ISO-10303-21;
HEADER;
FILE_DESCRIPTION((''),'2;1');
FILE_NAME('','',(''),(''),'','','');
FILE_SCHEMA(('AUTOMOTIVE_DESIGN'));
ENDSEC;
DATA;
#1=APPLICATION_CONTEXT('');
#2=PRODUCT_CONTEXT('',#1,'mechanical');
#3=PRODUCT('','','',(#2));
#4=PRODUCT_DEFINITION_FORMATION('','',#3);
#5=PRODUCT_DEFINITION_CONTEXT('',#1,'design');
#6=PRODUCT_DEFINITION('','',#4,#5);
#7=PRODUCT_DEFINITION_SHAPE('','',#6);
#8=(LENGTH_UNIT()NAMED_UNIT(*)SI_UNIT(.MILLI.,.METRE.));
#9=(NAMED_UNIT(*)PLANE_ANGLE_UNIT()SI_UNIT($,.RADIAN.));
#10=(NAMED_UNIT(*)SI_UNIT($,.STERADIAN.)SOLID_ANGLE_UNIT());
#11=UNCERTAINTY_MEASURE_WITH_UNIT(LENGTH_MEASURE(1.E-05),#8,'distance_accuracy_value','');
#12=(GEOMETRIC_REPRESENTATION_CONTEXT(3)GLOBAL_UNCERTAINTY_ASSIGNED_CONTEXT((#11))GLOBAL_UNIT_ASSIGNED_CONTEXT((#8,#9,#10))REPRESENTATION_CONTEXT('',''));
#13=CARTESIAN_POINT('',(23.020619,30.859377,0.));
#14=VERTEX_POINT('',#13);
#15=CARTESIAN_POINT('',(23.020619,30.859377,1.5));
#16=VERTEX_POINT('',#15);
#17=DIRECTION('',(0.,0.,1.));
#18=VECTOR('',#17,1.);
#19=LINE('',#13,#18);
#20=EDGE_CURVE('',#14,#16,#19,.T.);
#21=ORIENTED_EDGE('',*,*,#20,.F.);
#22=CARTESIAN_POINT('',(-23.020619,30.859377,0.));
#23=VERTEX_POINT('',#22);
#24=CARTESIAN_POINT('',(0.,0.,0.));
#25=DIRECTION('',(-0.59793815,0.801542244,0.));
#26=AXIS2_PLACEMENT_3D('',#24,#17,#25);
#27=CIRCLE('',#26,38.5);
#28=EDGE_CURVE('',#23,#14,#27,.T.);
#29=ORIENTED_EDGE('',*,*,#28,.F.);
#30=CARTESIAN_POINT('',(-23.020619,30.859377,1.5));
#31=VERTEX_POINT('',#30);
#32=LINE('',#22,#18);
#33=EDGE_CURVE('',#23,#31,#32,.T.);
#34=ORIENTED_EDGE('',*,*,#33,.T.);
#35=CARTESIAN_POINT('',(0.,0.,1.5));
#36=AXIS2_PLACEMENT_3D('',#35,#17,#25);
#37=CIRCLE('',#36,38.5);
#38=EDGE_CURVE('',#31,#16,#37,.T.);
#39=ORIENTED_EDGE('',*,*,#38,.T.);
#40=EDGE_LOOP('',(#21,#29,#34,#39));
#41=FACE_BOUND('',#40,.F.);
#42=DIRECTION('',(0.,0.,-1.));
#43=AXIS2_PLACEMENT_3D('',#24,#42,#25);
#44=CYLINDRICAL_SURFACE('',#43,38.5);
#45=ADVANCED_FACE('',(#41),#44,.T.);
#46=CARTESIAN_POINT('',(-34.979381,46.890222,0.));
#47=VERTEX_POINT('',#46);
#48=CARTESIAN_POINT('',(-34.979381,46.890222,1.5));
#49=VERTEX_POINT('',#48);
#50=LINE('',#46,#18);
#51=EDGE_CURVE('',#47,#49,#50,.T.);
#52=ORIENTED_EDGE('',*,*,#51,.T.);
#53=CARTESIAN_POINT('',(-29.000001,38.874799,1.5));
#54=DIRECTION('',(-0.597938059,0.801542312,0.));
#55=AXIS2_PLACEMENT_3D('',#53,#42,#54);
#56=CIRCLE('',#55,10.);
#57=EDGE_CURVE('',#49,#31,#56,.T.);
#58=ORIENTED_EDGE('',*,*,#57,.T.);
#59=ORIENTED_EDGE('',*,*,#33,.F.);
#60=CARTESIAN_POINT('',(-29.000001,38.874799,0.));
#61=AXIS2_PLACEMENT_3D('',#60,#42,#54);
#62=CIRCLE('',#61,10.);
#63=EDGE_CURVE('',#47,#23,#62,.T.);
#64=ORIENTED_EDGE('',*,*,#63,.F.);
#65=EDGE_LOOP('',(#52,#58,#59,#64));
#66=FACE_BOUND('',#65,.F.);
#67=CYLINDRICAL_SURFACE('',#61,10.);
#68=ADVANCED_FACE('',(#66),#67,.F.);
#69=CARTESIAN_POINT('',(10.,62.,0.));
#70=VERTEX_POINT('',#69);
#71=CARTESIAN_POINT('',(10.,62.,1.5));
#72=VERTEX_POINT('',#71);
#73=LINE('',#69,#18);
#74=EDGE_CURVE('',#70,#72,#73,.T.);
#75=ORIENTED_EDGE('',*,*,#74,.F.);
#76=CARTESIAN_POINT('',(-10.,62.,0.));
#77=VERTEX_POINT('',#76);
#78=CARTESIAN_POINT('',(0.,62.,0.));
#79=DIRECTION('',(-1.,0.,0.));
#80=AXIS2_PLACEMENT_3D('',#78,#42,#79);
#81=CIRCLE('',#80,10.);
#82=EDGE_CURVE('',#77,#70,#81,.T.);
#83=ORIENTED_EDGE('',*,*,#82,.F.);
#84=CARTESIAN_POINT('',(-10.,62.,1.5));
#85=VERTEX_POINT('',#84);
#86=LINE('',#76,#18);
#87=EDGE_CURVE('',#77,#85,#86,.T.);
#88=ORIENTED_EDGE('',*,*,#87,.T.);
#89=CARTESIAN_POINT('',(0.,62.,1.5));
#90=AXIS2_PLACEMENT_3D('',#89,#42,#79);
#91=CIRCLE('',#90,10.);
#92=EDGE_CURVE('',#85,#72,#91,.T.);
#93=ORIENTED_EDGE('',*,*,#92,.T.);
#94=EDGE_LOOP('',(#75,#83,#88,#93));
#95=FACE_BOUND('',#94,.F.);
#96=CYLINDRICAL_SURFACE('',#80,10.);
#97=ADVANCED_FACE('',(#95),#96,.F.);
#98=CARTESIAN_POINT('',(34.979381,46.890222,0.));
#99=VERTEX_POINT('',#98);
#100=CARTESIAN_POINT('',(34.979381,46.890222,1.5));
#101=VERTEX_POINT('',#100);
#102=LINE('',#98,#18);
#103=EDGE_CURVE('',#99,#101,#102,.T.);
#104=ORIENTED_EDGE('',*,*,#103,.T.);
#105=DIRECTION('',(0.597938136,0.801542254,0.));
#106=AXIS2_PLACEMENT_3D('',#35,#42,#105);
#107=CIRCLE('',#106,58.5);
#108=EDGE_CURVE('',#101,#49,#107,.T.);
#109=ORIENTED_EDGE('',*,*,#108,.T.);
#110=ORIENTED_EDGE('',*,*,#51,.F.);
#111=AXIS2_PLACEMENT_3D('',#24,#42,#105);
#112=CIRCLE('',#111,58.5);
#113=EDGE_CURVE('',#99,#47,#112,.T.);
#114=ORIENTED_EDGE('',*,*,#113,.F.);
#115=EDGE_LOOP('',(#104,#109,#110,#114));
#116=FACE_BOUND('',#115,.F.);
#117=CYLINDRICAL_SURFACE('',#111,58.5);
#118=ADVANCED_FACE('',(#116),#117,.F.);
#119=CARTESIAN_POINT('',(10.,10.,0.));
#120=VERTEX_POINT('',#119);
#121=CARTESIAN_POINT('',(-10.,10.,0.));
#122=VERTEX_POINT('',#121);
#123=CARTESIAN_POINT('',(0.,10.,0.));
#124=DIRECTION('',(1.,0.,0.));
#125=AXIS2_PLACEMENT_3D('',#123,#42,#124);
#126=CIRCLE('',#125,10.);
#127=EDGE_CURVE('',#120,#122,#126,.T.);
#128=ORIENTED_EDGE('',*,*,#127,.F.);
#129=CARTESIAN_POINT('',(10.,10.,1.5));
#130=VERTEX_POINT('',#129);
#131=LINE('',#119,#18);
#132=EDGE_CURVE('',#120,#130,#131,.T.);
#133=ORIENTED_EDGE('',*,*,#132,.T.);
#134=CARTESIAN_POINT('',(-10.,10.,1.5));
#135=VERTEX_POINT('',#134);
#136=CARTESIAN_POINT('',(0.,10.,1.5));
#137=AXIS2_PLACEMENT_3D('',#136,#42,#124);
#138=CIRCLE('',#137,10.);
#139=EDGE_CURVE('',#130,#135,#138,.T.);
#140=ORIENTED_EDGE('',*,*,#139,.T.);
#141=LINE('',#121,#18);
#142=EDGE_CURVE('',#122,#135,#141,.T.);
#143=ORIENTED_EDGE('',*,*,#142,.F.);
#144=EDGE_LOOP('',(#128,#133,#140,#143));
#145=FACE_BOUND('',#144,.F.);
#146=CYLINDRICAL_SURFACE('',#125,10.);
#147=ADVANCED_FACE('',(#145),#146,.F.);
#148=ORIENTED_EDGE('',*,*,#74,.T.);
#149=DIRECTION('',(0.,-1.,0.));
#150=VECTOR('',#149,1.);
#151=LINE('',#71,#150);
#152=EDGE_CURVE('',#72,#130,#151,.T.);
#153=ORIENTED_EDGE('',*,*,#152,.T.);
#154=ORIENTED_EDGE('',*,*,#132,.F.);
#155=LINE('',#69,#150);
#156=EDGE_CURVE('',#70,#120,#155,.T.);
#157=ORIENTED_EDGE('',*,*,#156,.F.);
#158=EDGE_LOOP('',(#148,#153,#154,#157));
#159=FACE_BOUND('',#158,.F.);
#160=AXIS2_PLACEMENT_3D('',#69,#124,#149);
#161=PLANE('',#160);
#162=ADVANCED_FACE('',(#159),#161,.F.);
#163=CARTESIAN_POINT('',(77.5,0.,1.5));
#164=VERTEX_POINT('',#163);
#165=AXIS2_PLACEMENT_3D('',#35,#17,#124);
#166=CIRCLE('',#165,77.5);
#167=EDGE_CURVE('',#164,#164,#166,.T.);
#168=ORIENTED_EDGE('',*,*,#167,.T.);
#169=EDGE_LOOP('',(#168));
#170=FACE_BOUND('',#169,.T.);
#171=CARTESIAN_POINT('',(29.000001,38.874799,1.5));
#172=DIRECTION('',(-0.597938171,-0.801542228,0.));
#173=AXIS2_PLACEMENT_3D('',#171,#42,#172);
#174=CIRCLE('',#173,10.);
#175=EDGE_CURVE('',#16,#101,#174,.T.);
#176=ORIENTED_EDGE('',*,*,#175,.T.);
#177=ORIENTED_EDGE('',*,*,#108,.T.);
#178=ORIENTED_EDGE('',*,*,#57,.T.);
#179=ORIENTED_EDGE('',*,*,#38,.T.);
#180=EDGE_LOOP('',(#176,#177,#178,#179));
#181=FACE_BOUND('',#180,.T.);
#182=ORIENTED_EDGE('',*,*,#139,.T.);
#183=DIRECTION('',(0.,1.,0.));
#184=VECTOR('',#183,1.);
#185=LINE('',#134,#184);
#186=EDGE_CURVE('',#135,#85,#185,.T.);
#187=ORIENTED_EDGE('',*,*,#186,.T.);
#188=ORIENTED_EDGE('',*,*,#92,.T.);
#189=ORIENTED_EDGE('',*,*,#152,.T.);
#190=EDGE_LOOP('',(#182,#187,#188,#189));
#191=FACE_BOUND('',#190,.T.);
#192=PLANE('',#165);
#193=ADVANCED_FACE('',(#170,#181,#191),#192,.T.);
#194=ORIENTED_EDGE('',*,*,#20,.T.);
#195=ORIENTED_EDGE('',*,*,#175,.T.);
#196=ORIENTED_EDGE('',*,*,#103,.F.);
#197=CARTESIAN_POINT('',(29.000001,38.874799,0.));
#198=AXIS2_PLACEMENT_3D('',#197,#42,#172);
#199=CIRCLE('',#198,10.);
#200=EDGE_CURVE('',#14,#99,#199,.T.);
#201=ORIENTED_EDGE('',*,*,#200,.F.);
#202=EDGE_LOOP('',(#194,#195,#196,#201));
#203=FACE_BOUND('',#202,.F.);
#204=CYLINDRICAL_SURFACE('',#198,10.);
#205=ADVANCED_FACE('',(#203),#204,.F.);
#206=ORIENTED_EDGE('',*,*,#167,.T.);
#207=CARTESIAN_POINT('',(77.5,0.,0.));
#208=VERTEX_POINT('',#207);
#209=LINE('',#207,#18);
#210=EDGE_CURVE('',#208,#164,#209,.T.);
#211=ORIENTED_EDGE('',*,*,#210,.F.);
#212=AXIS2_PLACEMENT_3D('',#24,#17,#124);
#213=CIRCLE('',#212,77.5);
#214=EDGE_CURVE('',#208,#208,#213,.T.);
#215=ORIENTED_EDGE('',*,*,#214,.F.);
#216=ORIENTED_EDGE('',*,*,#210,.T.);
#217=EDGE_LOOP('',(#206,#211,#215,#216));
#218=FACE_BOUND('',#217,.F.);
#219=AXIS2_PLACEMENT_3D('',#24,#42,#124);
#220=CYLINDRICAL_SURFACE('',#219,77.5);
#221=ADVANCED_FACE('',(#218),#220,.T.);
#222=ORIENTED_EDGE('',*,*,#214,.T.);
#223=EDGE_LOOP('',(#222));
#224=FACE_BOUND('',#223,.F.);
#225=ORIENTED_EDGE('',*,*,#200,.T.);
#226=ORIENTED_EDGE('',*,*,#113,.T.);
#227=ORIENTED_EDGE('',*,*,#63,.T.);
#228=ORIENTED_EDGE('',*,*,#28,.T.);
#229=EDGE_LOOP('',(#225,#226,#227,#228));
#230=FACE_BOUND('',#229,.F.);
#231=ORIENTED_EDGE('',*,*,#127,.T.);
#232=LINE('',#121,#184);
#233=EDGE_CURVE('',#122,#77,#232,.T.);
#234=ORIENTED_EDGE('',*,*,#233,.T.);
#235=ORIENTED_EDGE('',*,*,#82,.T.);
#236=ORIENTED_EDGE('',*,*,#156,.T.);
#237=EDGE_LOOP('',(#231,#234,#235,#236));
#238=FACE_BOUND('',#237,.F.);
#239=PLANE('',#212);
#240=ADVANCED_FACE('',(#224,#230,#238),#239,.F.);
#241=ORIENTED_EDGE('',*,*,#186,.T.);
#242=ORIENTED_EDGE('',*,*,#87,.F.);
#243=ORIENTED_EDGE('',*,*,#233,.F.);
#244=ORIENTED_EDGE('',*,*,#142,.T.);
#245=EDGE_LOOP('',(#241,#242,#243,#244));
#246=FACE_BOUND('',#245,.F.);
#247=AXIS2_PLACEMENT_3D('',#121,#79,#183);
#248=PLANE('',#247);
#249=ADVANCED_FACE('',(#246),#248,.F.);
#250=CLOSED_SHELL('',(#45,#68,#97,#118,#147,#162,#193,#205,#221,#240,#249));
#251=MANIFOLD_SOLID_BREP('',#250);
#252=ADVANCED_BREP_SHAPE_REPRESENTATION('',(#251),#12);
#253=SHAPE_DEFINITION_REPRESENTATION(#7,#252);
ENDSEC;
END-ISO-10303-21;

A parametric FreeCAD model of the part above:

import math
import FreeCAD as App
import Part
import Sketcher
from FreeCAD import Vector
Q = App.Units.Quantity

doc = App.newDocument("Part")
body = doc.addObject("PartDesign::Body", "Body")

# Sketch on XY plane
sketch1 = body.newObject("Sketcher::SketchObject", "Sketch")
sketch1.AttachmentSupport = (doc.getObject("XY_Plane"), [""])
sketch1.MapMode = "FlatFace"
sketch1.addGeometry([
    Part.Circle(Vector(0, 0, 0), Vector(0, 0, 1), 77.5),  # 0
    Part.ArcOfCircle(Part.Circle(Vector(29.000001, 38.874799, 0), Vector(0, 0, 1), 10), math.radians(53.277636), math.radians(233.277628)),  # 1
    Part.ArcOfCircle(Part.Circle(Vector(0, 0, 0), Vector(0, 0, 1), 58.5), math.radians(126.72237), math.radians(413.27763)),  # 2
    Part.ArcOfCircle(Part.Circle(Vector(-29.000001, 38.874799, 0), Vector(0, 0, 1), 10), math.radians(-53.277628), math.radians(126.722364)),  # 3
    Part.ArcOfCircle(Part.Circle(Vector(0, 0, 0), Vector(0, 0, 1), 38.5), math.radians(126.722371), math.radians(413.277629)),  # 4
    Part.ArcOfCircle(Part.Circle(Vector(0, 62, 0), Vector(0, 0, 1), 10), math.radians(0), math.radians(180)),  # 5
    Part.LineSegment(Vector(10, 62, 0), Vector(10, 10, 0)),  # 6
    Part.ArcOfCircle(Part.Circle(Vector(0, 10, 0), Vector(0, 0, 1), 10), math.radians(180), math.radians(360)),  # 7
    Part.LineSegment(Vector(-10, 10, 0), Vector(-10, 62, 0)),  # 8
], False)
sketch1.addConstraint([
    Sketcher.Constraint("Tangent", 1, 1, 2, 2),
    Sketcher.Constraint("Tangent", 2, 1, 3, 2),
    Sketcher.Constraint("Tangent", 3, 1, 4, 1),
    Sketcher.Constraint("Tangent", 4, 2, 1, 2),
    Sketcher.Constraint("Tangent", 5, 1, 6, 1),
    Sketcher.Constraint("Tangent", 6, 2, 7, 2),
    Sketcher.Constraint("Tangent", 7, 1, 8, 1),
    Sketcher.Constraint("Tangent", 8, 2, 5, 2),
    Sketcher.Constraint("Vertical", 6),
    Sketcher.Constraint("Vertical", 8),
    Sketcher.Constraint("Coincident", 0, 3, -1, 1),
    Sketcher.Constraint("Coincident", 2, 3, -1, 1),
    Sketcher.Constraint("Coincident", 4, 3, -1, 1),
    Sketcher.Constraint("Equal", 3, 5),
    Sketcher.Constraint("PointOnObject", 5, 3, -2),
    Sketcher.Constraint("Horizontal", 1, 3, 3, 3),
    Sketcher.Constraint("Diameter", 0, Q("155 mm")),
    Sketcher.Constraint("Radius", 1, Q("10 mm")),
    Sketcher.Constraint("Radius", 2, Q("58.5 mm")),
    Sketcher.Constraint("DistanceY", 6, 2, 6, 1, Q("52 mm")),
    Sketcher.Constraint("DistanceX", -1, 1, 1, 3, Q("29.000001 mm")),
    Sketcher.Constraint("DistanceY", -1, 1, 5, 3, Q("62 mm")),
])
pad1 = body.newObject("PartDesign::Pad", "Pad")
pad1.Profile = sketch1
pad1.Length = 1.5

doc.recompute()
